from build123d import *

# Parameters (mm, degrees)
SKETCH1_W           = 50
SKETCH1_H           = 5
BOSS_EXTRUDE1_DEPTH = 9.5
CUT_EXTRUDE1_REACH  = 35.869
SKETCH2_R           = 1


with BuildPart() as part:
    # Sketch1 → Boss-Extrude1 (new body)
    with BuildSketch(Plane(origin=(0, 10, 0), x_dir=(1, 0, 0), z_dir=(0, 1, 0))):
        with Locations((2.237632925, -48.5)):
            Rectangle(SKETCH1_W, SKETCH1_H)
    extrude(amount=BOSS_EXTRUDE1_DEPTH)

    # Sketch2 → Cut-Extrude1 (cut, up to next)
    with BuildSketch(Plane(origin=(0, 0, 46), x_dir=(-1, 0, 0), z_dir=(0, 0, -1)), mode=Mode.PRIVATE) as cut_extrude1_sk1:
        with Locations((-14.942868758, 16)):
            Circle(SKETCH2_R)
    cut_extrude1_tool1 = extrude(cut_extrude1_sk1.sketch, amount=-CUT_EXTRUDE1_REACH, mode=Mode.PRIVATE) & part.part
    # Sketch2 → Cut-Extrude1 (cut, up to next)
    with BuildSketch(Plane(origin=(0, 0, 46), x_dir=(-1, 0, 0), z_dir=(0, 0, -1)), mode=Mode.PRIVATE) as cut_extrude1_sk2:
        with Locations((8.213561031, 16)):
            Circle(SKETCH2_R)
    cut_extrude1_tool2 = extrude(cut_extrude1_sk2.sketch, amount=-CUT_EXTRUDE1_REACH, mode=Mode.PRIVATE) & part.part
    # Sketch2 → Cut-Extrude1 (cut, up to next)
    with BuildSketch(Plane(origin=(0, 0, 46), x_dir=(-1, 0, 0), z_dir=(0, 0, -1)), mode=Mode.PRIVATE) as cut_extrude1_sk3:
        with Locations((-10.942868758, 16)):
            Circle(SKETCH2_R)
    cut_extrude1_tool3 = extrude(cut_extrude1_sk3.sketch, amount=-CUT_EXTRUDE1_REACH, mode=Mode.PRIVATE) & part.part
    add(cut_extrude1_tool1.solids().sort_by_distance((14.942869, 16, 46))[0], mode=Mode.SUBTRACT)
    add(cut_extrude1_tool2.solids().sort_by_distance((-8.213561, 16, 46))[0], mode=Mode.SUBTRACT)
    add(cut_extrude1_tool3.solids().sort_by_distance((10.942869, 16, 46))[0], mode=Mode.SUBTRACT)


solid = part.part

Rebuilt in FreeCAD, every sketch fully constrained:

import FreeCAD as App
import Part
import Sketcher

V = App.Vector
Q = App.Units.Quantity

doc = App.newDocument("Part")
body = doc.addObject("PartDesign::Body", "Body")

# Sketch on XZ plane
sketch1 = body.newObject("Sketcher::SketchObject", "Sketch")
sketch1.AttachmentSupport = (doc.getObject("XZ_Plane"), [""])
sketch1.MapMode = "FlatFace"
sketch1.AttachmentOffset = App.Placement(V(0, 0, -10), App.Rotation())
sketch1.addGeometry([
    Part.LineSegment(V(-23, 46, 0), V(-23, 51, 0)),
    Part.LineSegment(V(-23, 51, 0), V(27, 51, 0)),
    Part.LineSegment(V(27, 51, 0), V(27, 46, 0)),
    Part.LineSegment(V(27, 46, 0), V(-23, 46, 0)),
], False)
sketch1.addConstraint([
    Sketcher.Constraint("Coincident", 0, 2, 1, 1),
    Sketcher.Constraint("Coincident", 1, 2, 2, 1),
    Sketcher.Constraint("Coincident", 2, 2, 3, 1),
    Sketcher.Constraint("Coincident", 3, 2, 0, 1),
    Sketcher.Constraint("Vertical", 0),
    Sketcher.Constraint("Horizontal", 1),
    Sketcher.Constraint("Vertical", 2),
    Sketcher.Constraint("Horizontal", 3),
    Sketcher.Constraint("DistanceX", 1, 1, 1, 2, Q("50 mm")),
    Sketcher.Constraint("DistanceY", 0, 1, 0, 2, Q("5 mm")),
    Sketcher.Constraint("DistanceY", -1, 1, 0, 2, Q("51 mm")),
    Sketcher.Constraint("DistanceX", 0, 2, -1, 1, Q("22.762367 mm")),
])
pad1 = body.newObject("PartDesign::Pad", "Pad")
pad1.Profile = sketch1
pad1.Length = 9.5
pad1.Reversed = True

# Sketch on XY plane
sketch2 = body.newObject("Sketcher::SketchObject", "Sketch001")
sketch2.AttachmentSupport = (doc.getObject("XY_Plane"), [""])
sketch2.MapMode = "FlatFace"
sketch2.AttachmentOffset = App.Placement(V(0, 0, 46), App.Rotation())
sketch2.addGeometry(Part.Circle(V(14.9, 16, 0), V(0, 0, 1), 1), False)
sketch2.addConstraint([
    Sketcher.Constraint("Diameter", 0, Q("2 mm")),
    Sketcher.Constraint("DistanceY", -1, 1, 0, 3, Q("16 mm")),
    Sketcher.Constraint("DistanceX", -1, 1, 0, 3, Q("14.942869 mm")),
])
pocket1 = body.newObject("PartDesign::Pocket", "Pocket")
pocket1.Profile = sketch2
pocket1.Type = "UpToFirst"
pocket1.Reversed = True

# Sketch on XY plane
sketch3 = body.newObject("Sketcher::SketchObject", "Sketch002")
sketch3.AttachmentSupport = (doc.getObject("XY_Plane"), [""])
sketch3.MapMode = "FlatFace"
sketch3.AttachmentOffset = App.Placement(V(0, 0, 46), App.Rotation())
sketch3.addGeometry(Part.Circle(V(-8.2, 16, 0), V(0, 0, 1), 1), False)
sketch3.addConstraint([
    Sketcher.Constraint("Diameter", 0, Q("2 mm")),
    Sketcher.Constraint("DistanceY", -1, 1, 0, 3, Q("16 mm")),
    Sketcher.Constraint("DistanceX", 0, 3, -1, 1, Q("8.213561 mm")),
])
pocket2 = body.newObject("PartDesign::Pocket", "Pocket001")
pocket2.Profile = sketch3
pocket2.Type = "UpToFirst"
pocket2.Reversed = True

# Sketch on XY plane
sketch4 = body.newObject("Sketcher::SketchObject", "Sketch003")
sketch4.AttachmentSupport = (doc.getObject("XY_Plane"), [""])
sketch4.MapMode = "FlatFace"
sketch4.AttachmentOffset = App.Placement(V(0, 0, 46), App.Rotation())
sketch4.addGeometry(Part.Circle(V(10.9, 16, 0), V(0, 0, 1), 1), False)
sketch4.addConstraint([
    Sketcher.Constraint("Diameter", 0, Q("2 mm")),
    Sketcher.Constraint("DistanceY", -1, 1, 0, 3, Q("16 mm")),
    Sketcher.Constraint("DistanceX", -1, 1, 0, 3, Q("10.942869 mm")),
])
pocket3 = body.newObject("PartDesign::Pocket", "Pocket002")
pocket3.Profile = sketch4
pocket3.Type = "UpToFirst"
pocket3.Reversed = True

doc.recompute()
